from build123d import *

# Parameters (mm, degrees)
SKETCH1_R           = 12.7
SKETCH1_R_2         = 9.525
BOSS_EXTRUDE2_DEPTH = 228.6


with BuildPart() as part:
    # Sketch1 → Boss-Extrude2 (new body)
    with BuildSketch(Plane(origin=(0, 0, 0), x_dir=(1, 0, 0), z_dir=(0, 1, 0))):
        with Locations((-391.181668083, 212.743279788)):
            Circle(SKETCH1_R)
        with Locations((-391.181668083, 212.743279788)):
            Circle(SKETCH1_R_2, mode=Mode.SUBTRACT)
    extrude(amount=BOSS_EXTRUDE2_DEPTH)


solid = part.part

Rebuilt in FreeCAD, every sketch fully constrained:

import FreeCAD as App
import Part
import Sketcher
Q = App.Units.Quantity

doc = App.newDocument("Part")
body = doc.addObject("PartDesign::Body", "Body")

sketch1 = doc.addObject("Sketcher::SketchObject", "Sketch")
body.addObject(sketch1)
sketch1.AttachmentSupport = (doc.XZ_Plane, [""])
sketch1.MapMode = "FlatFace"
sketch1.addGeometry([
    Part.Circle(App.Vector(-391, -213, 0), App.Vector(0, 0, 1), 13),
    Part.Circle(App.Vector(-391, -213, 0), App.Vector(0, 0, 1), 10),
], False)
sketch1.addConstraint([
    Sketcher.Constraint("Coincident", 1, 3, 0, 3),
    Sketcher.Constraint("Diameter", 0, Q("1 in")),
    Sketcher.Constraint("Diameter", 1, Q("0.75 in")),
    Sketcher.Constraint("DistanceX", 0, 3, -1, 1, 391.181668),
    Sketcher.Constraint("DistanceY", 0, 3, -1, 1, 212.74328),
])
pad1 = doc.addObject("PartDesign::Pad", "Pad")
body.addObject(pad1)
pad1.Profile = sketch1
pad1.Length = Q("9 in")
pad1.Reversed = True

doc.recompute()
